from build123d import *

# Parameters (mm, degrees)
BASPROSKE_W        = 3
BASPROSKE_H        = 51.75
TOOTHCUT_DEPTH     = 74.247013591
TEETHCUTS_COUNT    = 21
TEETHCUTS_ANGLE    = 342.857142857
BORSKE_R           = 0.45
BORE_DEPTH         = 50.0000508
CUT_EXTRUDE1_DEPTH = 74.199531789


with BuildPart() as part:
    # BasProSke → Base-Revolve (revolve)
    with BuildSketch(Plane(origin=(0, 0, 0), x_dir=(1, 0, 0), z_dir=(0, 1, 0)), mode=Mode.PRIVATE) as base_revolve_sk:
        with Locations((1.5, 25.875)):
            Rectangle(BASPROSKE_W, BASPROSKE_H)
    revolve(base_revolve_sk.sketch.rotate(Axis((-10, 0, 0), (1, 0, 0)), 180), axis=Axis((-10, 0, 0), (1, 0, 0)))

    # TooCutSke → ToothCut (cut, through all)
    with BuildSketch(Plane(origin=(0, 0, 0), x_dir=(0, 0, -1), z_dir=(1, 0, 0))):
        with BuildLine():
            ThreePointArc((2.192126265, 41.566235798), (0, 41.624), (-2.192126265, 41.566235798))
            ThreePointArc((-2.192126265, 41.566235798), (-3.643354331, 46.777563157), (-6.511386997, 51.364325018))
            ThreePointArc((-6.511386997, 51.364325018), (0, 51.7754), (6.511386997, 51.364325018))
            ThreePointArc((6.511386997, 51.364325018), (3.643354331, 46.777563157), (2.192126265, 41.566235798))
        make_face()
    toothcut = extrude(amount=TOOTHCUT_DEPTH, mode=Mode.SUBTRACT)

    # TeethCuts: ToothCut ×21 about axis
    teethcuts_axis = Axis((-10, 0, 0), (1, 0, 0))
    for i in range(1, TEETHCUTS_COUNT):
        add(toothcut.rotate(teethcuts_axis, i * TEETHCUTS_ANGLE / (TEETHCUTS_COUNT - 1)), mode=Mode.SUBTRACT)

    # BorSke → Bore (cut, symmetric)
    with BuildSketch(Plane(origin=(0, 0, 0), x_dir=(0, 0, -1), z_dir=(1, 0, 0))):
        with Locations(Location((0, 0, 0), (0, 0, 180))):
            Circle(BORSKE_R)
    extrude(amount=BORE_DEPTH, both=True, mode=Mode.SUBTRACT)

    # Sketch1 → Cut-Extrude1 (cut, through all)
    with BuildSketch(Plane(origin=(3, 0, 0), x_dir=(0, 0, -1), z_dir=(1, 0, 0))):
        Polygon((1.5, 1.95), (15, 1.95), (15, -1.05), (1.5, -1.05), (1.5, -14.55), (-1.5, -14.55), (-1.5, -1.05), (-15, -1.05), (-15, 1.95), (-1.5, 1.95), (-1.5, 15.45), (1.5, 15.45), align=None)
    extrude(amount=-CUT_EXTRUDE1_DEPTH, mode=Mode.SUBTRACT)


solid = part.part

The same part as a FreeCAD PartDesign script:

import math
import FreeCAD as App
import Part
import Sketcher
from FreeCAD import Vector


def add_polygon(sketch, points):
    """Adds a closed chain of lines whose ends are joined by coincident constraints."""
    first, n = sketch.GeometryCount, len(points)
    for a, b in zip(points, points[1:] + points[:1]):
        sketch.addGeometry(Part.LineSegment(App.Vector(*a, 0), App.Vector(*b, 0)), False)
    for i in range(n):
        sketch.addConstraint(Sketcher.Constraint("Coincident", first + i, 2, first + (i + 1) % n, 1))

doc = App.newDocument("Part")
params = doc.addObject("Spreadsheet::Sheet", "Params")
for row, (alias, value) in enumerate([
    ("sketch1_width", "3 mm"),
    ("sketch1_height", "51.75 mm"),
    ("revolution_angle", "360 deg"),
    ("sketch2_radius", "18.9 mm"),
    ("sketch3_diameter", "0.9 mm"),
    ("pocket2_length", "100.000102 mm"),
    ("sketch4_width", "3 mm"),
    ("sketch4_width2", "13.5 mm"),
], start=1):
    params.set(f"A{row}", alias)
    params.set(f"B{row}", "=" + value)
    params.setAlias(f"B{row}", alias)

body = doc.addObject("PartDesign::Body", "Body")

sketch1 = body.newObject("Sketcher::SketchObject", "Sketch")
sketch1.AttachmentSupport = (doc.getObject("XZ_Plane"), [""])
sketch1.MapMode = "FlatFace"
add_polygon(sketch1, [(0, -51.8), (0, 0), (3, 0), (3, -51.8)])
sketch1.addConstraint([
    Sketcher.Constraint("Vertical", 0),
    Sketcher.Constraint("Horizontal", 1),
    Sketcher.Constraint("Vertical", 2),
    Sketcher.Constraint("Horizontal", 3),
    Sketcher.Constraint("Coincident", 0, 2, -1, 1),
    Sketcher.Constraint("DistanceX", 1, 1, 1, 2, 3.0),
    Sketcher.Constraint("DistanceY", 0, 1, 0, 2, 51.75),
])
sketch1.setExpression("Constraints[9]", "Params.sketch1_width")
sketch1.setExpression("Constraints[10]", "Params.sketch1_height")
revolution = body.newObject("PartDesign::Revolution", "Revolution")
revolution.Profile = sketch1
revolution.ReferenceAxis = (sketch1, ["H_Axis"])
revolution.setExpression("Angle", "Params.revolution_angle")

sketch2 = body.newObject("Sketcher::SketchObject", "Sketch001")
sketch2.AttachmentSupport = (doc.getObject("YZ_Plane"), [""])
sketch2.MapMode = "FlatFace"
sketch2.addGeometry([
    Part.ArcOfCircle(Part.Circle(Vector(0, 0, 0), Vector(0, 0, 1), 41.6), math.radians(-3.02), math.radians(3.02)),
    Part.ArcOfCircle(Part.Circle(Vector(39.2, -20.9, 0), Vector(0, 0, 1), 18.9), math.radians(50), math.radians(83)),
    Part.ArcOfCircle(Part.Circle(Vector(0, 0, 0), Vector(0, 0, 1), 51.8), math.radians(-7.22), math.radians(7.22)),
    Part.ArcOfCircle(Part.Circle(Vector(39.2, 20.9, 0), Vector(0, 0, 1), 18.9), math.radians(-83), math.radians(-50)),
], False)
sketch2.addConstraint([
    Sketcher.Constraint("Coincident", 0, 1, 1, 2),
    Sketcher.Constraint("Coincident", 1, 1, 2, 1),
    Sketcher.Constraint("Coincident", 2, 2, 3, 2),
    Sketcher.Constraint("Coincident", 3, 1, 0, 2),
    Sketcher.Constraint("Coincident", 0, 3, -1, 1),
    Sketcher.Constraint("Coincident", 2, 3, -1, 1),
    Sketcher.Constraint("Equal", 1, 3),
    Sketcher.Constraint("Symmetric", 1, 3, 3, 3, -1),
    Sketcher.Constraint("Radius", 1, 18.9),
    Sketcher.Constraint("Radius", 0, 41.624),
    Sketcher.Constraint("Radius", 2, 51.7754),
    Sketcher.Constraint("DistanceX", 1, 3, 1, 1, 12.2105),
    Sketcher.Constraint("DistanceX", 1, 3, 0, 1, 2.412411),
])
sketch2.setExpression("Constraints[8]", "Params.sketch2_radius")
pocket1 = body.newObject("PartDesign::Pocket", "Pocket")
pocket1.Profile = sketch2
pocket1.Type = "ThroughAll"
pocket1.Reversed = True
doc.recompute()

polarpattern = body.newObject("PartDesign::PolarPattern", "PolarPattern")
polarpattern.Originals = [pocket1]
polarpattern.Axis = (doc.getObject("X_Axis"), [""])
polarpattern.Angle = 360
polarpattern.Occurrences = 21
body.Tip = polarpattern

sketch3 = body.newObject("Sketcher::SketchObject", "Sketch002")
sketch3.AttachmentSupport = (doc.getObject("YZ_Plane"), [""])
sketch3.MapMode = "FlatFace"
sketch3.addGeometry(Part.Circle(Vector(0, 0, 0), Vector(0, 0, 1), 0.45), False)
sketch3.addConstraint([
    Sketcher.Constraint("Coincident", 0, 3, -1, 1),
    Sketcher.Constraint("Diameter", 0, 0.9),
])
sketch3.setExpression("Constraints[1]", "Params.sketch3_diameter")
pocket2 = body.newObject("PartDesign::Pocket", "Pocket001")
pocket2.Profile = sketch3
pocket2.setExpression("Length", "Params.pocket2_length")
pocket2.Midplane = True

sketch4 = body.newObject("Sketcher::SketchObject", "Sketch003")
sketch4.AttachmentSupport = (doc.getObject("YZ_Plane"), [""])
sketch4.MapMode = "FlatFace"
sketch4.AttachmentOffset = App.Placement(Vector(0, 0, 3), App.Rotation())
add_polygon(sketch4, [(1.9, -15), (1.9, -1.5), (15.4, -1.5), (15.4, 1.5), (1.9, 1.5), (1.9, 15), (-1.1, 15), (-1.1, 1.5), (-14.6, 1.5), (-14.6, -1.5), (-1.1, -1.5), (-1.1, -15)])
sketch4.addConstraint([
    Sketcher.Constraint("Vertical", 0),
    Sketcher.Constraint("Horizontal", 1),
    Sketcher.Constraint("Vertical", 2),
    Sketcher.Constraint("Horizontal", 3),
    Sketcher.Constraint("Vertical", 4),
    Sketcher.Constraint("Horizontal", 5),
    Sketcher.Constraint("Vertical", 6),
    Sketcher.Constraint("Horizontal", 7),
    Sketcher.Constraint("Vertical", 8),
    Sketcher.Constraint("Horizontal", 9),
    Sketcher.Constraint("Vertical", 10),
    Sketcher.Constraint("Horizontal", 11),
    Sketcher.Constraint("Symmetric", 0, 2, 3, 2, -1),
    Sketcher.Constraint("Symmetric", 6, 2, 9, 2, -1),
    Sketcher.Constraint("Horizontal", 3, 2, 6, 2),
    Sketcher.Constraint("Equal", 3, 7),
    Sketcher.Constraint("Equal", 9, 0),
    Sketcher.Constraint("Equal", 11, 2),
    Sketcher.Constraint("Equal", 0, 4),
    Sketcher.Constraint("DistanceX", 5, 2, 5, 1, 3.0),
    Sketcher.Constraint("DistanceX", 1, 1, 1, 2, 13.5),
    Sketcher.Constraint("DistanceX", -1, 1, 0, 2, 1.95),
])
sketch4.setExpression("Constraints[31]", "Params.sketch4_width")
sketch4.setExpression("Constraints[32]", "Params.sketch4_width2")
pocket3 = body.newObject("PartDesign::Pocket", "Pocket002")
pocket3.Profile = sketch4
pocket3.Type = "ThroughAll"

doc.recompute()
